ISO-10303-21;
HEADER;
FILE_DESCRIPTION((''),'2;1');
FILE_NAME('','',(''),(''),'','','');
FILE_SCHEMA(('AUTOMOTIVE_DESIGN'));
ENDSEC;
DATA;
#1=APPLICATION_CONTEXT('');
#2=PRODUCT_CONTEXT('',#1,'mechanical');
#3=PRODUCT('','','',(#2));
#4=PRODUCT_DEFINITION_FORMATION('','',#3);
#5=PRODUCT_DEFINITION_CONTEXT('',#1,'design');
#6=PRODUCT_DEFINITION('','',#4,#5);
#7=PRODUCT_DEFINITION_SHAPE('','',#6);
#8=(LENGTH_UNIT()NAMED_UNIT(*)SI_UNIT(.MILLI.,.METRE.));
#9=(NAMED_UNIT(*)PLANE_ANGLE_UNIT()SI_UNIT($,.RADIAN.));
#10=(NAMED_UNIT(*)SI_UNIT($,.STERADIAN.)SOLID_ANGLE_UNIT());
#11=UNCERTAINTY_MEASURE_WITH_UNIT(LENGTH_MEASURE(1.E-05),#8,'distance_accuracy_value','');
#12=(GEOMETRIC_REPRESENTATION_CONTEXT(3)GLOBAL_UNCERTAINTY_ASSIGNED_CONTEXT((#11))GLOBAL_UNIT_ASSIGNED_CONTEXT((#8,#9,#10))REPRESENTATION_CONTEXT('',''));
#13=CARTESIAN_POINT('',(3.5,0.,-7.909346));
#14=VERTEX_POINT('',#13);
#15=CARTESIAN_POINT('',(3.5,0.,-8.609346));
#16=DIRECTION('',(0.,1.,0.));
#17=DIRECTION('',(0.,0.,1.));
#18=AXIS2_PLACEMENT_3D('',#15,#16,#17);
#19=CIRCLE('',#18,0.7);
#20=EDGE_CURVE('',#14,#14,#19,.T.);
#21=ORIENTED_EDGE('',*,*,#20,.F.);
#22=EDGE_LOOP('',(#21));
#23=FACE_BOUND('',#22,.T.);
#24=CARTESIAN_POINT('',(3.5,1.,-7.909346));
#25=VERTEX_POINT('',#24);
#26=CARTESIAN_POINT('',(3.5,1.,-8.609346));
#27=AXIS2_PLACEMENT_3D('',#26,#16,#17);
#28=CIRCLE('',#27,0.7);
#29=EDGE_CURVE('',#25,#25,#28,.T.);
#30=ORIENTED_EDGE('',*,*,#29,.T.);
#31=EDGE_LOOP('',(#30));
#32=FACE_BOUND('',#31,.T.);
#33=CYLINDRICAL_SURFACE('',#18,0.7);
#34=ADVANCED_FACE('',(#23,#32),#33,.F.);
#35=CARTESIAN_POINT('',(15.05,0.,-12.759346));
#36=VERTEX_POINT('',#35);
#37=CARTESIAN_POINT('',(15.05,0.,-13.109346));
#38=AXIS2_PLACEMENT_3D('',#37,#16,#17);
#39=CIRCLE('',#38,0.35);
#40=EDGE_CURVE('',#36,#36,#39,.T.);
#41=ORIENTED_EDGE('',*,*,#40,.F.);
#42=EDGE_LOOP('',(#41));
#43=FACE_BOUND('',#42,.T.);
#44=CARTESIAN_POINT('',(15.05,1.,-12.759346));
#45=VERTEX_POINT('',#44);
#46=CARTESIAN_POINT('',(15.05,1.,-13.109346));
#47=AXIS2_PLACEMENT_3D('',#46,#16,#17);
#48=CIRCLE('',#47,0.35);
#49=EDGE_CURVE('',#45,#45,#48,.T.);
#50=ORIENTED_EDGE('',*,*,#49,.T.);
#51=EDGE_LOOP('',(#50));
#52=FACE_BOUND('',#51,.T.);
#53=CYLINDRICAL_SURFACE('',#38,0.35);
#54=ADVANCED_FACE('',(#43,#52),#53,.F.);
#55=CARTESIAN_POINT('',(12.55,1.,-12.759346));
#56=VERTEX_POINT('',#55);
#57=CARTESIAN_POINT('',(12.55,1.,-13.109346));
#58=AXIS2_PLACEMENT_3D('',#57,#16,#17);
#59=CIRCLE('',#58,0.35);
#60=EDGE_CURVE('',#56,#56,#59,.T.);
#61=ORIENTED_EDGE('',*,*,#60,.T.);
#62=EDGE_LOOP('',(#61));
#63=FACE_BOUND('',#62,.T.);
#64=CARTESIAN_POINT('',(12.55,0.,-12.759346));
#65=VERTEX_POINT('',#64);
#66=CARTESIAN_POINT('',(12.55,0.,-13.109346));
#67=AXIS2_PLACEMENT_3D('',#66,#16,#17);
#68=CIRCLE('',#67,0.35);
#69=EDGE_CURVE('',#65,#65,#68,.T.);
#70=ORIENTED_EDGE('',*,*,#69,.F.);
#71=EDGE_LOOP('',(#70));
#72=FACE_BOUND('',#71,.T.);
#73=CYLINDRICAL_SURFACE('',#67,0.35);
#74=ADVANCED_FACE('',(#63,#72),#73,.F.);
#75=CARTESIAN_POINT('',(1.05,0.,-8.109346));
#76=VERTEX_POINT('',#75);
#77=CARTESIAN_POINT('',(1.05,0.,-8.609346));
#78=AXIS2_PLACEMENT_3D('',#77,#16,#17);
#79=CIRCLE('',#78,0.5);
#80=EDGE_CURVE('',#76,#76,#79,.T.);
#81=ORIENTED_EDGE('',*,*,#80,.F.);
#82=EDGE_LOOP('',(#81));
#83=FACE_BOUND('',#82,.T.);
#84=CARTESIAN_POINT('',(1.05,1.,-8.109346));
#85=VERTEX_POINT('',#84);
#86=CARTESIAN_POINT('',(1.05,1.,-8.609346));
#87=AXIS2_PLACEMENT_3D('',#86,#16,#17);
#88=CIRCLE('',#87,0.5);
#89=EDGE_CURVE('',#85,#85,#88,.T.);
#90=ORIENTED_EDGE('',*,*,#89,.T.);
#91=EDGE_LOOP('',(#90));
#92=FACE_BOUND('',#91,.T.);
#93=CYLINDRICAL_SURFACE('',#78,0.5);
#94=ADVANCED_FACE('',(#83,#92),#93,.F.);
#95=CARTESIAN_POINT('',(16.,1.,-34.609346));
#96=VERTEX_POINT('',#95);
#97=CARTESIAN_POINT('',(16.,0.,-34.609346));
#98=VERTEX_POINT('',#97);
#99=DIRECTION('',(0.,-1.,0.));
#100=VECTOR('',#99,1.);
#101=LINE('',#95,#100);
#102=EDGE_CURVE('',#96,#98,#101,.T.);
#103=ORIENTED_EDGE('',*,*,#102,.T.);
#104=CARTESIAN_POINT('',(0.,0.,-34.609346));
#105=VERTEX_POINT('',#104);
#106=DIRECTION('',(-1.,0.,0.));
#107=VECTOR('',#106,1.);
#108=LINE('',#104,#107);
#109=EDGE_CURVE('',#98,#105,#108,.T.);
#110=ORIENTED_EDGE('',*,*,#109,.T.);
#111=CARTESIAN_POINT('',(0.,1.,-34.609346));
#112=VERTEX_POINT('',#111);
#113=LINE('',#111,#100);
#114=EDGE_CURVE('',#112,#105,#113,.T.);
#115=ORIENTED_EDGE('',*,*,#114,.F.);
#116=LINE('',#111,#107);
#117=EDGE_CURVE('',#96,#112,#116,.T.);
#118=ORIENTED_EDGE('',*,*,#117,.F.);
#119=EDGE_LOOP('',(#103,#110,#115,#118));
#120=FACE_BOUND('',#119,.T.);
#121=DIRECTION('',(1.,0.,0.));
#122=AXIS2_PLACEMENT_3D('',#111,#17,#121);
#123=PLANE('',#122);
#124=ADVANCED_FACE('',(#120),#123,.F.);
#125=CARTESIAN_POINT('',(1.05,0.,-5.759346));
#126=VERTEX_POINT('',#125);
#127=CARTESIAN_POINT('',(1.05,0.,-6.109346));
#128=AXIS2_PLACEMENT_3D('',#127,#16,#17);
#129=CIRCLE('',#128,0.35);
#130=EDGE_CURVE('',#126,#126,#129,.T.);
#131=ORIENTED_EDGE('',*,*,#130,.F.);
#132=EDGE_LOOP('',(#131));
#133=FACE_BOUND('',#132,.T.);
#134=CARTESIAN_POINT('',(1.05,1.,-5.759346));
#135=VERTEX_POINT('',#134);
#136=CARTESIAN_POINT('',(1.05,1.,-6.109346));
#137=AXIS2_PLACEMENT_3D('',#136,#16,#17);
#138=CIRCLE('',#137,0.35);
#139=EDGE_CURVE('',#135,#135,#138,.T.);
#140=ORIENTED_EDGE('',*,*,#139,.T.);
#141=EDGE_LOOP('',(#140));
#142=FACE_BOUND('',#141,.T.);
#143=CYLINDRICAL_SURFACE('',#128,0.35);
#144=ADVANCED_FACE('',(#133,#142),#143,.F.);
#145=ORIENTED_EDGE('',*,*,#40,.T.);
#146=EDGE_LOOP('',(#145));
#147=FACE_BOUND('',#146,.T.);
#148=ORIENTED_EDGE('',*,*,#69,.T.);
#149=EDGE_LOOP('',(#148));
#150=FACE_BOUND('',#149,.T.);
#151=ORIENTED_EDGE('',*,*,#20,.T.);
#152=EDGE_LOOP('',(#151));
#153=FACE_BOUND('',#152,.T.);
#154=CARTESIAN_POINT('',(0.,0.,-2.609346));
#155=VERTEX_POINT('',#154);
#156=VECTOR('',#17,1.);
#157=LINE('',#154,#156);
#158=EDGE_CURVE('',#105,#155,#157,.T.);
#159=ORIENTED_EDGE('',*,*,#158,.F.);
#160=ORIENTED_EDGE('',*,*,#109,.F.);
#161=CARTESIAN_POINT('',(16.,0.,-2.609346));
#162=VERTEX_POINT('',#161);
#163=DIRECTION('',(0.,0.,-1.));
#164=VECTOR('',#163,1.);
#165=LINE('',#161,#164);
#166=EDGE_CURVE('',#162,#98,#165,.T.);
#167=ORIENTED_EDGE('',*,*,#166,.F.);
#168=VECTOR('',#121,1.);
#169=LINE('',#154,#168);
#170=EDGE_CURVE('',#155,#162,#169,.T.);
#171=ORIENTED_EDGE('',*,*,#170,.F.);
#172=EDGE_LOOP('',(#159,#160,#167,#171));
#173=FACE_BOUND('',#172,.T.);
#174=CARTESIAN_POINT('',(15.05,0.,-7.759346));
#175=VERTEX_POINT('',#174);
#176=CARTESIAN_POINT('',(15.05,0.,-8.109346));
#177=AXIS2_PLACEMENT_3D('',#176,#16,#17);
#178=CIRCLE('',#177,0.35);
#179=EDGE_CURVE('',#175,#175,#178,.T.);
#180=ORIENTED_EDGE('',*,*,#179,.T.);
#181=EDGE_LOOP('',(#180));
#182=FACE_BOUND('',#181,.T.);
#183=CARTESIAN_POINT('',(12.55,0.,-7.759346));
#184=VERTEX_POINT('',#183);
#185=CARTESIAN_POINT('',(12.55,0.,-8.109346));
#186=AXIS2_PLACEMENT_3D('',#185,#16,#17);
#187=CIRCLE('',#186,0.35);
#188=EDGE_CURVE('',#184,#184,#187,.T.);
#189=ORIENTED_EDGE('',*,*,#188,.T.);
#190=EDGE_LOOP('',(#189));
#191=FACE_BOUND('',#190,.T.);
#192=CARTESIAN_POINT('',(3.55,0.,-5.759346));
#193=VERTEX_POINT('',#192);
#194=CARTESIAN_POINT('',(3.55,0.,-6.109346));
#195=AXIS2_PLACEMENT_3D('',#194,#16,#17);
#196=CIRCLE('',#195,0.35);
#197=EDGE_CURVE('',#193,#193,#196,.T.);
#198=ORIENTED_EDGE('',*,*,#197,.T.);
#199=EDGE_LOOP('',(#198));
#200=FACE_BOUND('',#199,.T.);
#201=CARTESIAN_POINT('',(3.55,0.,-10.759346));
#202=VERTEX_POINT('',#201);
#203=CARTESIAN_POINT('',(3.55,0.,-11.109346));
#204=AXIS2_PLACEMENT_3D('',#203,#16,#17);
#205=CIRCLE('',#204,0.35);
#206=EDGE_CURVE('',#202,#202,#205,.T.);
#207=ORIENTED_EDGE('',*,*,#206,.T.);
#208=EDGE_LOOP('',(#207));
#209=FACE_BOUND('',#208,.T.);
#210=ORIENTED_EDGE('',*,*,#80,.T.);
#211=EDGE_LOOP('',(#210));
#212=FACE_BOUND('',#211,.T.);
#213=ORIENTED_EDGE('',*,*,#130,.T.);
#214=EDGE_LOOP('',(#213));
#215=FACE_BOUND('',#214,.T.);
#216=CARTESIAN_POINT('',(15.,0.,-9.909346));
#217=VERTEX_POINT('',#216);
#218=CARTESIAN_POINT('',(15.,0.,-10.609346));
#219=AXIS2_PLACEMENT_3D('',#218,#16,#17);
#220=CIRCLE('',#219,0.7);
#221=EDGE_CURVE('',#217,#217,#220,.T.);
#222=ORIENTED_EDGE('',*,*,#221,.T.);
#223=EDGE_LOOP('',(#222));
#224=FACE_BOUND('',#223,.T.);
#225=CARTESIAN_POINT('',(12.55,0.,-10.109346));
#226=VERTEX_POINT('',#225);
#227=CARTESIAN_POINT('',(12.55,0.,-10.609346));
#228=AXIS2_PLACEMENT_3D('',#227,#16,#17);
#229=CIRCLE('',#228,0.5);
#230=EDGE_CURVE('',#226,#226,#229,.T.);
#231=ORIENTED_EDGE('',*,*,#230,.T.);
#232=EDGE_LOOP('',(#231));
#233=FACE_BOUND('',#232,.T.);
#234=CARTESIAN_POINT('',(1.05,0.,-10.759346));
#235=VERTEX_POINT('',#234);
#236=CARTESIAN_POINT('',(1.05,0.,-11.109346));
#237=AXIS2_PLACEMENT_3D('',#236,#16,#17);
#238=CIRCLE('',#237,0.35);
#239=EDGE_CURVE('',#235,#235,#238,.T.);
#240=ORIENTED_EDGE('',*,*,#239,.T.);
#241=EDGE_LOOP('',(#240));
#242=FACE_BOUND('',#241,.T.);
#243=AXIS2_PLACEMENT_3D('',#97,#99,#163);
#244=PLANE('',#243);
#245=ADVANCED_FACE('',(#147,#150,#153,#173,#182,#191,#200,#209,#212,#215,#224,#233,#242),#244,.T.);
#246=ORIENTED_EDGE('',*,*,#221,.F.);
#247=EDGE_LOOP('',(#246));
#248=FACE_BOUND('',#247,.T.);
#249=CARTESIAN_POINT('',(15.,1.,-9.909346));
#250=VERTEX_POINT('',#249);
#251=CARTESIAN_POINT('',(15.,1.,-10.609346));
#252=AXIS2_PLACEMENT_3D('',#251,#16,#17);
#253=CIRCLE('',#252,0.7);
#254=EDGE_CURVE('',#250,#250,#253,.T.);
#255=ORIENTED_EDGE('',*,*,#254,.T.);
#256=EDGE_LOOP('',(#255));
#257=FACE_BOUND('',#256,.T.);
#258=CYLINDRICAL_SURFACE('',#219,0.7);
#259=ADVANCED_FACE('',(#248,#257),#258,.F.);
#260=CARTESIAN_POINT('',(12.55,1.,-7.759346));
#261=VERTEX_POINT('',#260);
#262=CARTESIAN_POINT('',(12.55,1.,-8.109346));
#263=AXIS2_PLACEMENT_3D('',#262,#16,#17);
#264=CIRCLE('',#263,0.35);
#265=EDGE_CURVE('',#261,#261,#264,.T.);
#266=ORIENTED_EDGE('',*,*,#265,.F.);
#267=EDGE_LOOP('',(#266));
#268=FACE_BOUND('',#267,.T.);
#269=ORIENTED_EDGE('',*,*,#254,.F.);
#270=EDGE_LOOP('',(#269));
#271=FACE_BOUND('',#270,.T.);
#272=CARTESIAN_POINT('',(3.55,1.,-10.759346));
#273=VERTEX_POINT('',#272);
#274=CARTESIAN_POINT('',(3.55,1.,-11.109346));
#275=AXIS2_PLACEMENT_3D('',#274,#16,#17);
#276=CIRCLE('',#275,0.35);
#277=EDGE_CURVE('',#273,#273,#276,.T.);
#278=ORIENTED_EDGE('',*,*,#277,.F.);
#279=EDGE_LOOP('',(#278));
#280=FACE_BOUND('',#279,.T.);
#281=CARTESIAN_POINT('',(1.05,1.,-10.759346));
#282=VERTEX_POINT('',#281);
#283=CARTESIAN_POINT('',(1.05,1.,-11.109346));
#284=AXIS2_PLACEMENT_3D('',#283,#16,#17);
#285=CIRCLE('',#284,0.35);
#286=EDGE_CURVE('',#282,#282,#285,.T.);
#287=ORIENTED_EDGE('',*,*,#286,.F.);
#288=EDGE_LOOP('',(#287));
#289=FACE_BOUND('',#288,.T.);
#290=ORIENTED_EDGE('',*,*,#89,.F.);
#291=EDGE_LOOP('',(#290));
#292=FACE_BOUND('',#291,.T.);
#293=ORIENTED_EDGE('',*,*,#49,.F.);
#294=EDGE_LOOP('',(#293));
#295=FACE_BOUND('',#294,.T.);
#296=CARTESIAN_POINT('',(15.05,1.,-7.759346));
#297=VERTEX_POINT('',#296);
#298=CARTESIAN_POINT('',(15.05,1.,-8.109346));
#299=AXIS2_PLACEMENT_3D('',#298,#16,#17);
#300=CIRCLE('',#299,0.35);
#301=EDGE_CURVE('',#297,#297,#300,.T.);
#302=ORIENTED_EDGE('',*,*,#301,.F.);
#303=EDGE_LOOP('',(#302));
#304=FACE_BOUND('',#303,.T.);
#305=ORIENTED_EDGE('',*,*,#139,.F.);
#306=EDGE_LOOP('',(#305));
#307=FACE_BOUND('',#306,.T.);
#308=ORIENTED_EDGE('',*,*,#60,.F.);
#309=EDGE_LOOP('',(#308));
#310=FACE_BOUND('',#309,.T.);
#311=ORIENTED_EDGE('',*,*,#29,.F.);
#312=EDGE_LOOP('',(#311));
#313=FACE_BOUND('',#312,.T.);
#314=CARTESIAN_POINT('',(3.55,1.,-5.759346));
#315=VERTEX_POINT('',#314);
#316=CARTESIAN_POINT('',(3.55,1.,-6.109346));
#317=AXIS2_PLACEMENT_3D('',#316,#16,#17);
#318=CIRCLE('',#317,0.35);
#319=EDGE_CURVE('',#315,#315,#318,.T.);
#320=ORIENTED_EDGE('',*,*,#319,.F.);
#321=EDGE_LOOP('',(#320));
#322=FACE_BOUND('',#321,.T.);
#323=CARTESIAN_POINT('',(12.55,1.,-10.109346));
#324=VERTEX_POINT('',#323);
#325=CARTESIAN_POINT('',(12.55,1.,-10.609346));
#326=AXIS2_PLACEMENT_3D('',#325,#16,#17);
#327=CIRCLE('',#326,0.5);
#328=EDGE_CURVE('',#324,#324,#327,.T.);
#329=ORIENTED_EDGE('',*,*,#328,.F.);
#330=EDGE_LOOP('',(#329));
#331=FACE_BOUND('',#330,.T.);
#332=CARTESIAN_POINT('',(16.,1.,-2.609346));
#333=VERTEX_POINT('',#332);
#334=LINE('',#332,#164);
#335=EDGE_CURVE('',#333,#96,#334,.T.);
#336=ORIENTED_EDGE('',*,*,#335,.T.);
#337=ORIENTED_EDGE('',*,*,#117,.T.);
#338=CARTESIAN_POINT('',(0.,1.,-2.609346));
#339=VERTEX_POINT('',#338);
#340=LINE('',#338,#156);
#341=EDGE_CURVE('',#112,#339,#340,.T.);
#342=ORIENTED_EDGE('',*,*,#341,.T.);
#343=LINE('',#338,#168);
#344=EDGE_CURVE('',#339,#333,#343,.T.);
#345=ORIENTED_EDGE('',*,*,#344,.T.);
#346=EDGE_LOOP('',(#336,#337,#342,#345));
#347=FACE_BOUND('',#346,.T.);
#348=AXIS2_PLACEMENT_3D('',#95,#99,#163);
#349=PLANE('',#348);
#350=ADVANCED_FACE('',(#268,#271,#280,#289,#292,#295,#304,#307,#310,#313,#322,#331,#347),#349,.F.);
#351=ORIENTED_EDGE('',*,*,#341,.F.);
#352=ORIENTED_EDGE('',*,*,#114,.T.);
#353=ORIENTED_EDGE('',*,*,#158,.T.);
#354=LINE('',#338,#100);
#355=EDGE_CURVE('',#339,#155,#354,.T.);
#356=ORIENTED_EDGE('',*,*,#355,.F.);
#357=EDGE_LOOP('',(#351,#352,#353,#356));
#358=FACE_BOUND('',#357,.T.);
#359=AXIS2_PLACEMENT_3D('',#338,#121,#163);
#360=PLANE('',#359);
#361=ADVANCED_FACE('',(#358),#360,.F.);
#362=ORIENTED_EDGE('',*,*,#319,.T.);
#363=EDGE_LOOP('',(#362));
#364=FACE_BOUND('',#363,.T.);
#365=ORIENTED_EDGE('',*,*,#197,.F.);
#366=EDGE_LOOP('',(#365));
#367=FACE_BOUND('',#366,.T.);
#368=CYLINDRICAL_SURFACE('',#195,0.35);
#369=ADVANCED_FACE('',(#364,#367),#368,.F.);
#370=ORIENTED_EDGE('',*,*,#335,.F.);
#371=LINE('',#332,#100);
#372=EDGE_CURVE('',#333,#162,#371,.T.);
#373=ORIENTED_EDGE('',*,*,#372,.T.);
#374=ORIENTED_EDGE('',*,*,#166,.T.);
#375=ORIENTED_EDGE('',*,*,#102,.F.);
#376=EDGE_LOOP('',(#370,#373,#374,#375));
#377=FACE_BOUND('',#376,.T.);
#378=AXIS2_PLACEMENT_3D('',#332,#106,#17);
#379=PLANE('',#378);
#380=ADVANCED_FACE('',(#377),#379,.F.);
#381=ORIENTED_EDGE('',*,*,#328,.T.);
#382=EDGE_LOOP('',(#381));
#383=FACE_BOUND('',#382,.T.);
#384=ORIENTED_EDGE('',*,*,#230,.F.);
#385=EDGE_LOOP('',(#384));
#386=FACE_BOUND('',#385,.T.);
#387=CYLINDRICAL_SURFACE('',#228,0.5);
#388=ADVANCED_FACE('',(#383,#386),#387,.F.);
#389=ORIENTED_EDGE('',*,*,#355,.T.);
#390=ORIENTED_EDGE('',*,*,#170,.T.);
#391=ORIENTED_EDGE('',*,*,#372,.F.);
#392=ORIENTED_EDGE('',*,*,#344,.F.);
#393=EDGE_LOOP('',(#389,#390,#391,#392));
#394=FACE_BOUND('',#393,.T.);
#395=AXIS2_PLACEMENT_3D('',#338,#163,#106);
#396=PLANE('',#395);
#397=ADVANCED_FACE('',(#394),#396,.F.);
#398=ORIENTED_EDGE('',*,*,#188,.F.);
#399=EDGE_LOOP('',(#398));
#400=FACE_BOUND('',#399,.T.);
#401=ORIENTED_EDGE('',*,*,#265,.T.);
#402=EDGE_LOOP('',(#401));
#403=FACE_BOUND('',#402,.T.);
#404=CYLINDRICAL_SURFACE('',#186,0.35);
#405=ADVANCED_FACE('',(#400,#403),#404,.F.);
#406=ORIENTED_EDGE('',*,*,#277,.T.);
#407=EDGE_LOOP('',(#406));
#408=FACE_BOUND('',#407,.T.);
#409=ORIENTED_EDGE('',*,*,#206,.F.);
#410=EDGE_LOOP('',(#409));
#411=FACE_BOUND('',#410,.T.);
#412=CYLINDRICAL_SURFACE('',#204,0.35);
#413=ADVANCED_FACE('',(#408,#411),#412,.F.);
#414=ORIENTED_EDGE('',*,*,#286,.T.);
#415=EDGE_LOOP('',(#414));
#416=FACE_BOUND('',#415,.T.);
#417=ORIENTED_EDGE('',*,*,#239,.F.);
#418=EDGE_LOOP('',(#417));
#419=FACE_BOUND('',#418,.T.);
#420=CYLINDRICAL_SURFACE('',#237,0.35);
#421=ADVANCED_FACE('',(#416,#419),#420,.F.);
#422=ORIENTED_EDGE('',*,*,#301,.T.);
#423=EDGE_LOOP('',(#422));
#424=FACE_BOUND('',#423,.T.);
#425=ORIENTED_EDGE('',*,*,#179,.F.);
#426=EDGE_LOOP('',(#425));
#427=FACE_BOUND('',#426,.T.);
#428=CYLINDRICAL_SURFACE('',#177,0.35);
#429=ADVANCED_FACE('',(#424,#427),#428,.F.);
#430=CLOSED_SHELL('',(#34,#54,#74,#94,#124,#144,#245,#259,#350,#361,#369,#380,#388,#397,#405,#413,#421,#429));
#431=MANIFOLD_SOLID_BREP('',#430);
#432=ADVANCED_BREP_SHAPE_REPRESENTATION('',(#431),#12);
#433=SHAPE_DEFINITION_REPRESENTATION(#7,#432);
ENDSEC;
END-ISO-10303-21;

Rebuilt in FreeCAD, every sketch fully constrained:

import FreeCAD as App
import Part
import Sketcher
from FreeCAD import Vector


def add_polygon(sketch, points):
    """Adds a closed chain of lines whose ends are joined by coincident constraints."""
    first, n = sketch.GeometryCount, len(points)
    for a, b in zip(points, points[1:] + points[:1]):
        sketch.addGeometry(Part.LineSegment(App.Vector(*a, 0), App.Vector(*b, 0)), False)
    for i in range(n):
        sketch.addConstraint(Sketcher.Constraint("Coincident", first + i, 2, first + (i + 1) % n, 1))

doc = App.newDocument("Part")
params = doc.addObject("Spreadsheet::Sheet", "Params")
for row, (alias, value) in enumerate([
    ("sketch1_width", "16 mm"),
    ("sketch1_height", "32 mm"),
    ("pad1_length", "1 mm"),
    ("sketch2_diameter", "1 mm"),
    ("sketch2_diameter2", "1.4 mm"),
    ("sketch2_diameter3", "0.7 mm"),
], start=1):
    params.set(f"A{row}", alias)
    params.set(f"B{row}", "=" + value)
    params.setAlias(f"B{row}", alias)

body = doc.addObject("PartDesign::Body", "Body")

# Sketch on XZ plane
sketch1 = body.newObject("Sketcher::SketchObject", "Sketch")
sketch1.AttachmentSupport = (doc.getObject("XZ_Plane"), [""])
sketch1.MapMode = "FlatFace"
add_polygon(sketch1, [(0, -35), (0, -3), (16, -3), (16, -35)])  # lines 0-3
sketch1.addConstraint(Sketcher.Constraint("Vertical", 0))
sketch1.addConstraint(Sketcher.Constraint("Horizontal", 1))
sketch1.addConstraint(Sketcher.Constraint("Vertical", 2))
sketch1.addConstraint(Sketcher.Constraint("Horizontal", 3))
sketch1.addConstraint(Sketcher.Constraint("PointOnObject", 0, 2, -2))
sketch1.addConstraint(Sketcher.Constraint("DistanceX", 1, 1, 1, 2, 16.0))
sketch1.addConstraint(Sketcher.Constraint("DistanceY", 0, 1, 0, 2, 32.0))
sketch1.addConstraint(Sketcher.Constraint("DistanceY", 0, 2, -1, 1, 2.609346))
sketch1.setExpression("Constraints[9]", "Params.sketch1_width")
sketch1.setExpression("Constraints[10]", "Params.sketch1_height")
pad1 = body.newObject("PartDesign::Pad", "Pad")
pad1.Profile = sketch1
pad1.setExpression("Length", "Params.pad1_length")
pad1.Reversed = True

# Sketch on XZ plane
sketch2 = body.newObject("Sketcher::SketchObject", "Sketch001")
sketch2.AttachmentSupport = (doc.getObject("XZ_Plane"), [""])
sketch2.MapMode = "FlatFace"
sketch2.AttachmentOffset = App.Placement(Vector(0, 0, -1), App.Rotation())
sketch2.addGeometry(Part.Circle(Vector(15, -10.61, 0), Vector(0, 0, 1), 0.7), False)
sketch2.addGeometry(Part.Circle(Vector(12.55, -10.61, 0), Vector(0, 0, 1), 0.5), False)
sketch2.addGeometry(Part.Circle(Vector(3.5, -8.61, 0), Vector(0, 0, 1), 0.7), False)
sketch2.addGeometry(Part.Circle(Vector(1.05, -8.61, 0), Vector(0, 0, 1), 0.5), False)
sketch2.addGeometry(Part.Circle(Vector(12.55, -13.11, 0), Vector(0, 0, 1), 0.35), False)
sketch2.addGeometry(Part.Circle(Vector(15.05, -13.11, 0), Vector(0, 0, 1), 0.35), False)
sketch2.addGeometry(Part.Circle(Vector(15.05, -8.11, 0), Vector(0, 0, 1), 0.35), False)
sketch2.addGeometry(Part.Circle(Vector(12.55, -8.11, 0), Vector(0, 0, 1), 0.35), False)
sketch2.addGeometry(Part.Circle(Vector(3.55, -11.11, 0), Vector(0, 0, 1), 0.35), False)
sketch2.addGeometry(Part.Circle(Vector(1.05, -11.11, 0), Vector(0, 0, 1), 0.35), False)
sketch2.addGeometry(Part.Circle(Vector(1.05, -6.11, 0), Vector(0, 0, 1), 0.35), False)
sketch2.addGeometry(Part.Circle(Vector(3.55, -6.11, 0), Vector(0, 0, 1), 0.35), False)
sketch2.addConstraint(Sketcher.Constraint("Equal", 0, 2))
sketch2.addConstraint(Sketcher.Constraint("Equal", 1, 3))
sketch2.addConstraint(Sketcher.Constraint("Equal", 4, 5))
sketch2.addConstraint(Sketcher.Constraint("Equal", 5, 6))
sketch2.addConstraint(Sketcher.Constraint("Equal", 6, 7))
sketch2.addConstraint(Sketcher.Constraint("Equal", 7, 8))
sketch2.addConstraint(Sketcher.Constraint("Equal", 8, 9))
sketch2.addConstraint(Sketcher.Constraint("Equal", 9, 10))
sketch2.addConstraint(Sketcher.Constraint("Equal", 10, 11))
sketch2.addConstraint(Sketcher.Constraint("Horizontal", 0, 3, 1, 3))
sketch2.addConstraint(Sketcher.Constraint("Horizontal", 2, 3, 3, 3))
sketch2.addConstraint(Sketcher.Constraint("Horizontal", 4, 3, 5, 3))
sketch2.addConstraint(Sketcher.Constraint("Horizontal", 6, 3, 7, 3))
sketch2.addConstraint(Sketcher.Constraint("Horizontal", 8, 3, 9, 3))
sketch2.addConstraint(Sketcher.Constraint("Horizontal", 10, 3, 11, 3))
sketch2.addConstraint(Sketcher.Constraint("Vertical", 1, 3, 4, 3))
sketch2.addConstraint(Sketcher.Constraint("Vertical", 5, 3, 6, 3))
sketch2.addConstraint(Sketcher.Constraint("Vertical", 4, 3, 7, 3))
sketch2.addConstraint(Sketcher.Constraint("Vertical", 3, 3, 9, 3))
sketch2.addConstraint(Sketcher.Constraint("Vertical", 9, 3, 10, 3))
sketch2.addConstraint(Sketcher.Constraint("Vertical", 8, 3, 11, 3))
sketch2.addConstraint(Sketcher.Constraint("Diameter", 1, 1.0))
sketch2.addConstraint(Sketcher.Constraint("Diameter", 0, 1.4))
sketch2.addConstraint(Sketcher.Constraint("Diameter", 4, 0.7))
sketch2.addConstraint(Sketcher.Constraint("DistanceX", -1, 1, 0, 3, 15.0))
sketch2.addConstraint(Sketcher.Constraint("DistanceY", 1, 3, 2, 3, 2.0))
sketch2.addConstraint(Sketcher.Constraint("DistanceX", 3, 3, 5, 3, 14.0))
sketch2.addConstraint(Sketcher.Constraint("DistanceY", 5, 3, 6, 3, 5.0))
sketch2.addConstraint(Sketcher.Constraint("DistanceX", 8, 3, 1, 3, 9.0))
sketch2.addConstraint(Sketcher.Constraint("DistanceY", 4, 3, 8, 3, 2.0))
sketch2.addConstraint(Sketcher.Constraint("DistanceY", 9, 3, 10, 3, 5.0))
sketch2.addConstraint(Sketcher.Constraint("DistanceX", -1, 1, 2, 3, 3.5))
sketch2.addConstraint(Sketcher.Constraint("DistanceX", 3, 3, 1, 3, 11.5))
sketch2.addConstraint(Sketcher.Constraint("DistanceY", 4, 3, 1, 3, 2.5))
sketch2.addConstraint(Sketcher.Constraint("DistanceX", -1, 1, 1, 3, 12.55))
sketch2.addConstraint(Sketcher.Constraint("DistanceY", 0, 3, -1, 1, 10.609346))
sketch2.setExpression("Constraints[21]", "Params.sketch2_diameter")
sketch2.setExpression("Constraints[22]", "Params.sketch2_diameter2")
sketch2.setExpression("Constraints[23]", "Params.sketch2_diameter3")
pocket1 = body.newObject("PartDesign::Pocket", "Pocket")
pocket1.Profile = sketch2
pocket1.Type = "ThroughAll"
pocket1.Reversed = True

doc.recompute()
